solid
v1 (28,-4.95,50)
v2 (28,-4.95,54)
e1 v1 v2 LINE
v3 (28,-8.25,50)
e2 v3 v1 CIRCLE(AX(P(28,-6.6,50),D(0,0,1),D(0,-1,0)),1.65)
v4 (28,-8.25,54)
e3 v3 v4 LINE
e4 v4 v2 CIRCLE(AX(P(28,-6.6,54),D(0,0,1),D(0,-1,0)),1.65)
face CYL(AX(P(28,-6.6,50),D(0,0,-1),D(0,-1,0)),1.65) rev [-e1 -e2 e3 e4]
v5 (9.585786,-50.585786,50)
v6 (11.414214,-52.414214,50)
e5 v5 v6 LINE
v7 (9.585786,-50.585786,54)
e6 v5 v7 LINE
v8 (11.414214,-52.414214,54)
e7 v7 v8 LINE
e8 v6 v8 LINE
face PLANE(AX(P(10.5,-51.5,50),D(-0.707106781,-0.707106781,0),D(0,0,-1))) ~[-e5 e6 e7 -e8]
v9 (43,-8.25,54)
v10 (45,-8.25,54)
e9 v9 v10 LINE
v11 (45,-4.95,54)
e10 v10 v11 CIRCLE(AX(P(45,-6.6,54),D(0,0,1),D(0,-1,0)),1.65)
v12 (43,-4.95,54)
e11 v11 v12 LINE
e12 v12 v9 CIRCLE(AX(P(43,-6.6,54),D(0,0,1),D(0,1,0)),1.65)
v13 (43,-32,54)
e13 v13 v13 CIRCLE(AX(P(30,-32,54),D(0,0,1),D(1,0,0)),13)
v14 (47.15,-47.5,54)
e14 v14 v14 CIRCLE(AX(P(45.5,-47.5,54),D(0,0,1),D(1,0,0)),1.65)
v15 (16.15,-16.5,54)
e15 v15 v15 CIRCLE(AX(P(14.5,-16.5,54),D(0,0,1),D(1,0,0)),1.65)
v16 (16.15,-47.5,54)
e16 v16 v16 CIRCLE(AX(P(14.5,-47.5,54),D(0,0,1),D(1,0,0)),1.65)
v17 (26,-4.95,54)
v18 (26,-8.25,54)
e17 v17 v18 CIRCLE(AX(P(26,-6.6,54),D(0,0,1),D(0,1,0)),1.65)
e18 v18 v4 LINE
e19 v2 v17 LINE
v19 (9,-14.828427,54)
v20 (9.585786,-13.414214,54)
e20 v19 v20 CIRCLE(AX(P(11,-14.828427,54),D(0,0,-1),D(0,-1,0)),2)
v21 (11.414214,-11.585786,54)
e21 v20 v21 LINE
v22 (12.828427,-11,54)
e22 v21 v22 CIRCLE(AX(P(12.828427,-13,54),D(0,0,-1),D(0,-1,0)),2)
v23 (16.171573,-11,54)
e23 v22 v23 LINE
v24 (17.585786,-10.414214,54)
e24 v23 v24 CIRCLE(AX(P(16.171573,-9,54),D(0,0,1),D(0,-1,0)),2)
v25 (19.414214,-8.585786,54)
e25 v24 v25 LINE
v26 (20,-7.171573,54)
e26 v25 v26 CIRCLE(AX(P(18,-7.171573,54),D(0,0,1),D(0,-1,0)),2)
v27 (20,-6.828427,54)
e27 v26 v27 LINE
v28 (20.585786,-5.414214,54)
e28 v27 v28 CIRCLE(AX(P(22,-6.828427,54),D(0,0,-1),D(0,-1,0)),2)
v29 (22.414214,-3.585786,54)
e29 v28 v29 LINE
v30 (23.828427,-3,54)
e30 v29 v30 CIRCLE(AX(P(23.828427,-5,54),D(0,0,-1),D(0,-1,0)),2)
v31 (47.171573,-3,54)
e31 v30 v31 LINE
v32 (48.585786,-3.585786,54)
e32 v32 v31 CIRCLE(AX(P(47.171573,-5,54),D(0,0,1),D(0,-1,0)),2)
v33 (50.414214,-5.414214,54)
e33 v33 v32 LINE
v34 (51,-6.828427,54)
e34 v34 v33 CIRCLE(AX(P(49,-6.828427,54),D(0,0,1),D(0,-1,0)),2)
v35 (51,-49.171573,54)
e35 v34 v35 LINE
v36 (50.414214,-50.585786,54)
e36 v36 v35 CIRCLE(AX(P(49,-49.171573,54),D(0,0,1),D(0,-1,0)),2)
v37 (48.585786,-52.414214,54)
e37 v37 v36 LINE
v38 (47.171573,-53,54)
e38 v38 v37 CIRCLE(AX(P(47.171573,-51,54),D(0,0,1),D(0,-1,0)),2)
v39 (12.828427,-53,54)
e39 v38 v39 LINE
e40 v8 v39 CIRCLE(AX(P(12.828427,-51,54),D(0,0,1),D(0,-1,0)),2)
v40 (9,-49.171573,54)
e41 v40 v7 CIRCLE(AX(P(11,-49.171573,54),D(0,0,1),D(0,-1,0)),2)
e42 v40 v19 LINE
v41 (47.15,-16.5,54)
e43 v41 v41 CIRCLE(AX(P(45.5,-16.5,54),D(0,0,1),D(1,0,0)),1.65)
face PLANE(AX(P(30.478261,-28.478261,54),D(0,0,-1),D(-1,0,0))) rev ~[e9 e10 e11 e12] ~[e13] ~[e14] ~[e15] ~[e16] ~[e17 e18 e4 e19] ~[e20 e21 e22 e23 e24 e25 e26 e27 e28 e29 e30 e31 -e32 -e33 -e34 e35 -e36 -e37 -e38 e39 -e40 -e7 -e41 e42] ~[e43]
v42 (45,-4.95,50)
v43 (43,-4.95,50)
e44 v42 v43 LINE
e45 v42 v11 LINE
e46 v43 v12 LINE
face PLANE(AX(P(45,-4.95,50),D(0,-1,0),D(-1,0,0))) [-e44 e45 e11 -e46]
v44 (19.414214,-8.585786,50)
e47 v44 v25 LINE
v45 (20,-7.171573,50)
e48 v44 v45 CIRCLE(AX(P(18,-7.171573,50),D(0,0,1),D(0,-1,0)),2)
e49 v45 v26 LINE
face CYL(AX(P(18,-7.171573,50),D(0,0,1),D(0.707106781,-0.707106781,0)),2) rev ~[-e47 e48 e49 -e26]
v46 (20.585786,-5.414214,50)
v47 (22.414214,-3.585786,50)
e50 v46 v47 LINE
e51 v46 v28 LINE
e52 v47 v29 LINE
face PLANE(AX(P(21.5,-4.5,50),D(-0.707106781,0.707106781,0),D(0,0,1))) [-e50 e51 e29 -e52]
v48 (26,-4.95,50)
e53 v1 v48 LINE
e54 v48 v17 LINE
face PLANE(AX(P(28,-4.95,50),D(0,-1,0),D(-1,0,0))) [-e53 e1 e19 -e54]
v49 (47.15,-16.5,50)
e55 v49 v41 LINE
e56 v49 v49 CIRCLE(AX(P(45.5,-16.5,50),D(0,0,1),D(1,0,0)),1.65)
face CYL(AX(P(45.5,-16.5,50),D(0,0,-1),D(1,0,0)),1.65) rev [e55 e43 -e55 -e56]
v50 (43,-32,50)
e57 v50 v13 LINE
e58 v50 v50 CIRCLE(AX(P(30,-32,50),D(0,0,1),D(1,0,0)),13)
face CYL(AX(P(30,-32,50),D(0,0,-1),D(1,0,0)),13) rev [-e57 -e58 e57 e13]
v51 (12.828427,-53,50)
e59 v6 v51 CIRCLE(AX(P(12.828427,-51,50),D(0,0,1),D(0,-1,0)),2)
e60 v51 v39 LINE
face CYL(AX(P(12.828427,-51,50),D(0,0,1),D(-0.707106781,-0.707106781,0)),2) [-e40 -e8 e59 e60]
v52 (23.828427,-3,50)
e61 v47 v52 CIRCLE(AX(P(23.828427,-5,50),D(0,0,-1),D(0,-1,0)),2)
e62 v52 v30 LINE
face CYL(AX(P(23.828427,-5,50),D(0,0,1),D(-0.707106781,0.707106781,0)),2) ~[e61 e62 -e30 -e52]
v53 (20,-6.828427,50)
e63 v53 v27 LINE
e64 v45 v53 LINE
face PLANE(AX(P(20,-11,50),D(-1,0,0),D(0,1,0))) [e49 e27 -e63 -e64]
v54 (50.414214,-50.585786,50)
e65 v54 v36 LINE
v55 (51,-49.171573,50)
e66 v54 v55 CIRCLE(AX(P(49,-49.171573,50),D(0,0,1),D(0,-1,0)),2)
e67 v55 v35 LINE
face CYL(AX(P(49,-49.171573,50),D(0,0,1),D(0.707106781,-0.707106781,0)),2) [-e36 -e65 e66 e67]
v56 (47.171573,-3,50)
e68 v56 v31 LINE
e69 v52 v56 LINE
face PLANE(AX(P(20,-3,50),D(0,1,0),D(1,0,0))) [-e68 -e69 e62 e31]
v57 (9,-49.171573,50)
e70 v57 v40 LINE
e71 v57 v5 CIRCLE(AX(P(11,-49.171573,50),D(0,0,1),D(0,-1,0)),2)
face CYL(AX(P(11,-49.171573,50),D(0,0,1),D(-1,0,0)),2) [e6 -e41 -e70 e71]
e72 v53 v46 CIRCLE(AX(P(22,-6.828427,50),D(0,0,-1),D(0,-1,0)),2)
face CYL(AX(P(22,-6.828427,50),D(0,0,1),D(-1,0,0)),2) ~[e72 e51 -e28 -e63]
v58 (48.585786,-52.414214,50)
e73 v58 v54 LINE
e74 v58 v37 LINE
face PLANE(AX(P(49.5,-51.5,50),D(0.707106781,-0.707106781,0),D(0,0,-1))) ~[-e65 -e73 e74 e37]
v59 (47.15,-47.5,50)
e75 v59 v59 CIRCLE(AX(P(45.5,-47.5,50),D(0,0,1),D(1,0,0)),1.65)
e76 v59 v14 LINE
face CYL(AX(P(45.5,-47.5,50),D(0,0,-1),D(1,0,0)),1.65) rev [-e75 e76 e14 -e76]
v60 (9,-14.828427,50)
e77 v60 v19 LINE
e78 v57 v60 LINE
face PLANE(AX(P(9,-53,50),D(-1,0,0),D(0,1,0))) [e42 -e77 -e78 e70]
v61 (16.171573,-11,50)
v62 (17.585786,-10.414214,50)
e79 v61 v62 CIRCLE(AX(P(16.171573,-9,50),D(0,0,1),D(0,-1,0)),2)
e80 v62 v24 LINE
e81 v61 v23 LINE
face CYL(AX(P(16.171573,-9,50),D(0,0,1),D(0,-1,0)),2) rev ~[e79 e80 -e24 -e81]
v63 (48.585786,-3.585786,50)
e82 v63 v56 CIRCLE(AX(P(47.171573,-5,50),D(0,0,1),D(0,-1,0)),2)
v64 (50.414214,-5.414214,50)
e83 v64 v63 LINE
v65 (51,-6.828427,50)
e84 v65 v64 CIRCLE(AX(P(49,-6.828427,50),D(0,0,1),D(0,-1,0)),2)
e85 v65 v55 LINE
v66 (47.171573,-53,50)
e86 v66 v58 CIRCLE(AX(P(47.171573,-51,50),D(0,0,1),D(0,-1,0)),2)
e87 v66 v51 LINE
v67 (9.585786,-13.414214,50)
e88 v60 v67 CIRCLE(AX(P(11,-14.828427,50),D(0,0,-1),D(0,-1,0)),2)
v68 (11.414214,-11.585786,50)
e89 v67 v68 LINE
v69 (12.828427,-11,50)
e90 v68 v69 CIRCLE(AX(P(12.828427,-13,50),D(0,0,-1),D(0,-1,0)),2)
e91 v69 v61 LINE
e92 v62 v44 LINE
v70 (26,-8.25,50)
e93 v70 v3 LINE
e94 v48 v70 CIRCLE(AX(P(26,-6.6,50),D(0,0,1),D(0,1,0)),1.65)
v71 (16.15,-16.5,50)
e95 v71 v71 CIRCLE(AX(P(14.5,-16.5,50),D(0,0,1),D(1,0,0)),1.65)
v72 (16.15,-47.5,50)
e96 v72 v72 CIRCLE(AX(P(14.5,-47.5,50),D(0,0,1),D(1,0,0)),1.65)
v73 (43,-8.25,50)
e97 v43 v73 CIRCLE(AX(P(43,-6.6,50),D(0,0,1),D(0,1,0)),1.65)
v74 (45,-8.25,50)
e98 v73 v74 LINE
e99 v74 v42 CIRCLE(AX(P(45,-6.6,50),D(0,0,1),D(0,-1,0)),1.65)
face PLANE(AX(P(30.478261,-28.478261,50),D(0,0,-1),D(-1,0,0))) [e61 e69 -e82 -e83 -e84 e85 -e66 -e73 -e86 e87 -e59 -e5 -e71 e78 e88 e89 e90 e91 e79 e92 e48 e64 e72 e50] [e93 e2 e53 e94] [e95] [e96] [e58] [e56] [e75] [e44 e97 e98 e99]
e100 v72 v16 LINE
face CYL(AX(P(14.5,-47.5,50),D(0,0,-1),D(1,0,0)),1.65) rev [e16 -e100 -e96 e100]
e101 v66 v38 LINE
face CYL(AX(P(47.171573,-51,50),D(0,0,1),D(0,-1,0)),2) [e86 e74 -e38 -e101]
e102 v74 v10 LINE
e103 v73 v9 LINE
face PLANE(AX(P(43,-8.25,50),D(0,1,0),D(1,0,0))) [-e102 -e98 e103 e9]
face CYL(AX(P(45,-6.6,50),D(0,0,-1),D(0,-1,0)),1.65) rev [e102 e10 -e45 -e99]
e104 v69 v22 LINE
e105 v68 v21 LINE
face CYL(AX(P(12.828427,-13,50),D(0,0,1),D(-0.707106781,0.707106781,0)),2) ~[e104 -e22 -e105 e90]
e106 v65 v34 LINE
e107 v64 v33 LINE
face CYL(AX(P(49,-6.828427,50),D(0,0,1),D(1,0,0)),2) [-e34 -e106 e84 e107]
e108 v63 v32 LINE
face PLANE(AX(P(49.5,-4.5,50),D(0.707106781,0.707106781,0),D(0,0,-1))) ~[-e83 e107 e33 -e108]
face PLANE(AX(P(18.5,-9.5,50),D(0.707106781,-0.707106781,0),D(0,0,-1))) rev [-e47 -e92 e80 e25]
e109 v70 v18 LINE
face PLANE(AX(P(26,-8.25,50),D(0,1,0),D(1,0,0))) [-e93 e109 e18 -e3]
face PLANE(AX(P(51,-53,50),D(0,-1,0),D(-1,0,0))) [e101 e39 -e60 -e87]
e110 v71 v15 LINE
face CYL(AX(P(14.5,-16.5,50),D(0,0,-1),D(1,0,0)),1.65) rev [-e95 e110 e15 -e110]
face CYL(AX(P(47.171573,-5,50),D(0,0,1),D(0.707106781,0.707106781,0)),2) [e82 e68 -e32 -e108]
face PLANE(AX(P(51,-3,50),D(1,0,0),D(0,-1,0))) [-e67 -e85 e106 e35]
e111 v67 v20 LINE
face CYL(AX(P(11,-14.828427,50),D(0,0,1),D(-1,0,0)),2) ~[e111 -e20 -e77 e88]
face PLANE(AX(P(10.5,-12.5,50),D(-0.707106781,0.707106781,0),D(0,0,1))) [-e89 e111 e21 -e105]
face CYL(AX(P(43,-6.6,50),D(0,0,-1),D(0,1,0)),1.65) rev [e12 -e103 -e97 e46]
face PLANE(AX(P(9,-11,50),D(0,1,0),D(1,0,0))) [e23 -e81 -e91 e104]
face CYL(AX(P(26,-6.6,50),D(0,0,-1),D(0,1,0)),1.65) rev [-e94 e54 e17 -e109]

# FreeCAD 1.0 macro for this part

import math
import FreeCAD as App
import Part
import Sketcher
from FreeCAD import Vector
Q = App.Units.Quantity


def edges_at(feature, points):
    """Names of the edges that pass closest to the given points."""
    edges = feature.Shape.Edges
    near = lambda p: min(range(len(edges)), key=lambda i: edges[i].distToShape(Part.Vertex(*p))[0])
    return sorted({f"Edge{near(p) + 1}" for p in points})


def add_polygon(sketch, points):
    """Adds a closed chain of lines whose ends are joined by coincident constraints."""
    first, n = sketch.GeometryCount, len(points)
    for a, b in zip(points, points[1:] + points[:1]):
        sketch.addGeometry(Part.LineSegment(App.Vector(*a, 0), App.Vector(*b, 0)), False)
    for i in range(n):
        sketch.addConstraint(Sketcher.Constraint("Coincident", first + i, 2, first + (i + 1) % n, 1))

doc = App.newDocument("Part")
body = doc.addObject("PartDesign::Body", "Body")

sketch1 = doc.addObject("Sketcher::SketchObject", "Sketch")
body.addObject(sketch1)
sketch1.AttachmentSupport = (doc.XY_Plane, [""])
sketch1.MapMode = "FlatFace"
add_polygon(sketch1, [(-21, 21), (-21, -21), (21, -21), (21, 29), (-10, 29), (-10, 21)])
sketch1.addGeometry(Part.Circle(Vector(15.5, -15.5, 0), Vector(0, 0, 1), 1.6), False)
sketch1.addGeometry(Part.Circle(Vector(-15.5, -15.5, 0), Vector(0, 0, 1), 1.6), False)
sketch1.addGeometry(Part.Circle(Vector(0, 0, 0), Vector(0, 0, 1), 13), False)
sketch1.addGeometry(Part.Circle(Vector(15.5, 15.5, 0), Vector(0, 0, 1), 1.6), False)
sketch1.addGeometry(Part.LineSegment(Vector(13, 27.1, 0), Vector(15, 27.1, 0)), False)
sketch1.addGeometry(Part.ArcOfCircle(Part.Circle(Vector(15, 25.4, 0), Vector(0, 0, 1), 1.6), math.radians(-90), math.radians(90)), False)
sketch1.addGeometry(Part.LineSegment(Vector(15, 23.8, 0), Vector(13, 23.8, 0)), False)
sketch1.addGeometry(Part.ArcOfCircle(Part.Circle(Vector(13, 25.4, 0), Vector(0, 0, 1), 1.6), math.radians(90), math.radians(270)), False)
sketch1.addGeometry(Part.Circle(Vector(-15.5, 15.5, 0), Vector(0, 0, 1), 1.6), False)
sketch1.addGeometry(Part.LineSegment(Vector(-4, 27.1, 0), Vector(-2, 27.1, 0)), False)
sketch1.addGeometry(Part.ArcOfCircle(Part.Circle(Vector(-2, 25.4, 0), Vector(0, 0, 1), 1.6), math.radians(-90), math.radians(90)), False)
sketch1.addGeometry(Part.LineSegment(Vector(-2, 23.8, 0), Vector(-4, 23.8, 0)), False)
sketch1.addGeometry(Part.ArcOfCircle(Part.Circle(Vector(-4, 25.4, 0), Vector(0, 0, 1), 1.6), math.radians(90), math.radians(270)), False)
sketch1.addConstraint([
    Sketcher.Constraint("Tangent", 10, 2, 11, 2),
    Sketcher.Constraint("Tangent", 11, 1, 12, 1),
    Sketcher.Constraint("Tangent", 12, 2, 13, 2),
    Sketcher.Constraint("Tangent", 13, 1, 10, 1),
    Sketcher.Constraint("Tangent", 15, 2, 16, 2),
    Sketcher.Constraint("Tangent", 16, 1, 17, 1),
    Sketcher.Constraint("Tangent", 17, 2, 18, 2),
    Sketcher.Constraint("Tangent", 18, 1, 15, 1),
    Sketcher.Constraint("Vertical", 0),
    Sketcher.Constraint("Horizontal", 1),
    Sketcher.Constraint("Vertical", 2),
    Sketcher.Constraint("Horizontal", 3),
    Sketcher.Constraint("Vertical", 4),
    Sketcher.Constraint("Horizontal", 5),
    Sketcher.Constraint("Horizontal", 10),
    Sketcher.Constraint("Horizontal", 12),
    Sketcher.Constraint("Horizontal", 15),
    Sketcher.Constraint("Horizontal", 17),
    Sketcher.Constraint("Coincident", 8, 3, -1, 1),
    Sketcher.Constraint("Equal", 6, 7),
    Sketcher.Constraint("Equal", 7, 9),
    Sketcher.Constraint("Equal", 9, 11),
    Sketcher.Constraint("Equal", 13, 14),
    Sketcher.Constraint("Equal", 14, 16),
    Sketcher.Constraint("Symmetric", 7, 3, 9, 3, -1, 1),
    Sketcher.Constraint("Symmetric", 6, 3, 14, 3, -1, 1),
    Sketcher.Constraint("Symmetric", 1, 2, 5, 2, -1, 1),
    Sketcher.Constraint("Symmetric", 6, 3, 7, 3, -2),
    Sketcher.Constraint("Horizontal", 13, 3, 16, 3),
    Sketcher.Constraint("Equal", 12, 15),
    Sketcher.Constraint("Equal", 1, 0),
    Sketcher.Constraint("Diameter", 8, Q("26 mm")),
    Sketcher.Constraint("Diameter", 6, Q("3.3 mm")),
    Sketcher.Constraint("DistanceX", 1, 1, 1, 2, Q("42 mm")),
    Sketcher.Constraint("DistanceX", 3, 2, 3, 1, Q("31 mm")),
    Sketcher.Constraint("DistanceX", 10, 1, 10, 2, Q("2 mm")),
    Sketcher.Constraint("DistanceY", 2, 1, 2, 2, Q("50 mm")),
    Sketcher.Constraint("DistanceX", -1, 1, 11, 3, Q("15 mm")),
    Sketcher.Constraint("DistanceX", 16, 3, -1, 1, Q("2 mm")),
    Sketcher.Constraint("DistanceX", 7, 3, 6, 3, Q("31 mm")),
    Sketcher.Constraint("DistanceY", 6, 3, 9, 3, Q("31 mm")),
    Sketcher.Constraint("DistanceY", -1, 1, 11, 3, Q("25.4 mm")),
])
pad1 = doc.addObject("PartDesign::Pad", "Pad")
body.addObject(pad1)
pad1.Profile = sketch1
pad1.Length = 4
doc.recompute()

chamfer = doc.addObject("PartDesign::Chamfer", "Chamfer")
body.addObject(chamfer)
chamfer.Base = (pad1, edges_at(pad1, [
    (-10, 29, 2),
    (-10, 21, 2),
    (21, 29, 2),
    (21, -21, 2),
    (-21, -21, 2),
    (-21, 21, 2),
]))
chamfer.Size = 3
doc.recompute()

fillet = doc.addObject("PartDesign::Fillet", "Fillet")
body.addObject(fillet)
fillet.Base = (chamfer, edges_at(chamfer, [
    (21, 26, 2),
    (18, 29, 2),
    (21, -18, 2),
    (18, -21, 2),
    (-18, -21, 2),
    (-21, -18, 2),
    (-18, 21, 2),
    (-21, 18, 2),
    (-13, 21, 2),
    (-10, 24, 2),
    (-10, 26, 2),
    (-7, 29, 2),
]))
fillet.Radius = 2
body2 = doc.addObject("PartDesign::Body", "Body001")
doc.recompute()

body.Placement = App.Placement(Vector(30, -32, 50), App.Rotation(Vector(0, 0, 1), 0))
boolean = doc.addObject("PartDesign::Boolean", "Boolean")
body2.addObject(boolean)
boolean.Type = "Fuse"
boolean.addObjects([body])

doc.recompute()
